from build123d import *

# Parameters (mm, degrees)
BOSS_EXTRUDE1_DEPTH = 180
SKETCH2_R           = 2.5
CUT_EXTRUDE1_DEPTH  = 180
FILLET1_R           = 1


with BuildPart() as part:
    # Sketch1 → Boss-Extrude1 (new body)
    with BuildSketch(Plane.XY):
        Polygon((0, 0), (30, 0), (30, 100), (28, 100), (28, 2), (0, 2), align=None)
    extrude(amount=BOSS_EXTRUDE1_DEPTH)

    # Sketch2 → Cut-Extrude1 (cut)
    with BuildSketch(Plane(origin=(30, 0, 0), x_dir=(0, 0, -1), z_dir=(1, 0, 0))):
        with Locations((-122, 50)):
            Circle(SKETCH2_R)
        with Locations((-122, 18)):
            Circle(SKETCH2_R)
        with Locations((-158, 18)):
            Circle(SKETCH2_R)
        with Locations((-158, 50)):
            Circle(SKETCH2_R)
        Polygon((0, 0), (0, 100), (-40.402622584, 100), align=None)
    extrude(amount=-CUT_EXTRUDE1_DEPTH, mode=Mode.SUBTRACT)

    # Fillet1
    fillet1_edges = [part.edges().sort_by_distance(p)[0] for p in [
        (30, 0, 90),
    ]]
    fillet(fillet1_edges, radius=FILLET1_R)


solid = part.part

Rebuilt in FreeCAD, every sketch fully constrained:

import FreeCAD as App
import Part
import Sketcher
Q = App.Units.Quantity


def edges_at(feature, points):
    """Names of the edges that pass closest to the given points."""
    edges = feature.Shape.Edges
    near = lambda p: min(range(len(edges)), key=lambda i: edges[i].distToShape(Part.Vertex(*p))[0])
    return sorted({f"Edge{near(p) + 1}" for p in points})

doc = App.newDocument("Part")
body = doc.addObject("PartDesign::Body", "Body")

# Sketch on XY plane
sketch1 = body.newObject("Sketcher::SketchObject", "Sketch")
sketch1.AttachmentSupport = (doc.getObject("XY_Plane"), [""])
sketch1.MapMode = "FlatFace"
sketch1.addGeometry([
    Part.LineSegment(App.Vector(0, 0, 0), App.Vector(30, 0, 0)),  # 0
    Part.LineSegment(App.Vector(30, 0, 0), App.Vector(30, 100, 0)),  # 1
    Part.LineSegment(App.Vector(30, 100, 0), App.Vector(28, 100, 0)),  # 2
    Part.LineSegment(App.Vector(28, 100, 0), App.Vector(28, 2, 0)),  # 3
    Part.LineSegment(App.Vector(28, 2, 0), App.Vector(0, 2, 0)),  # 4
    Part.LineSegment(App.Vector(0, 2, 0), App.Vector(0, 0, 0)),  # 5
], False)
sketch1.addConstraint([
    Sketcher.Constraint("Coincident", 0, 2, 1, 1),
    Sketcher.Constraint("Coincident", 1, 2, 2, 1),
    Sketcher.Constraint("Coincident", 2, 2, 3, 1),
    Sketcher.Constraint("Coincident", 3, 2, 4, 1),
    Sketcher.Constraint("Coincident", 4, 2, 5, 1),
    Sketcher.Constraint("Coincident", 5, 2, 0, 1),
    Sketcher.Constraint("Horizontal", 0),
    Sketcher.Constraint("Vertical", 1),
    Sketcher.Constraint("Horizontal", 2),
    Sketcher.Constraint("Vertical", 3),
    Sketcher.Constraint("Horizontal", 4),
    Sketcher.Constraint("Vertical", 5),
    Sketcher.Constraint("Coincident", 5, 2, -1, 1),
    Sketcher.Constraint("Equal", 2, 5),
    Sketcher.Constraint("DistanceX", 0, 1, 0, 2, 30.0),
    Sketcher.Constraint("DistanceX", 2, 2, 2, 1, 2.0),
    Sketcher.Constraint("DistanceY", 1, 1, 1, 2, 100.0),
])
pad1 = body.newObject("PartDesign::Pad", "Pad")
pad1.Profile = sketch1
pad1.Length = 180

# Sketch on YZ plane
sketch2 = body.newObject("Sketcher::SketchObject", "Sketch001")
sketch2.AttachmentSupport = (doc.getObject("YZ_Plane"), [""])
sketch2.MapMode = "FlatFace"
sketch2.AttachmentOffset = App.Placement(App.Vector(0, 0, 30), App.Rotation())
sketch2.addGeometry([
    Part.Circle(App.Vector(50, 122, 0), App.Vector(0, 0, 1), 2.5),  # 0
    Part.Circle(App.Vector(18, 122, 0), App.Vector(0, 0, 1), 2.5),  # 1
    Part.Circle(App.Vector(18, 158, 0), App.Vector(0, 0, 1), 2.5),  # 2
    Part.Circle(App.Vector(50, 158, 0), App.Vector(0, 0, 1), 2.5),  # 3
    Part.LineSegment(App.Vector(0, 0, 0), App.Vector(100, 0, 0)),  # 4
    Part.LineSegment(App.Vector(100, 0, 0), App.Vector(100, 40.402623, 0)),  # 5
    Part.LineSegment(App.Vector(100, 40.402623, 0), App.Vector(0, 0, 0)),  # 6
], False)
sketch2.addConstraint([
    Sketcher.Constraint("Coincident", 4, 2, 5, 1),
    Sketcher.Constraint("Coincident", 5, 2, 6, 1),
    Sketcher.Constraint("Coincident", 6, 2, 4, 1),
    Sketcher.Constraint("Horizontal", 4),
    Sketcher.Constraint("Vertical", 5),
    Sketcher.Constraint("Coincident", 6, 2, -1, 1),
    Sketcher.Constraint("Equal", 0, 1),
    Sketcher.Constraint("Equal", 1, 2),
    Sketcher.Constraint("Equal", 2, 3),
    Sketcher.Constraint("Horizontal", 0, 3, 1, 3),
    Sketcher.Constraint("Horizontal", 2, 3, 3, 3),
    Sketcher.Constraint("Vertical", 1, 3, 2, 3),
    Sketcher.Constraint("Vertical", 0, 3, 3, 3),
    Sketcher.Constraint("Diameter", 0, 5.0),
    Sketcher.Constraint("DistanceX", 4, 1, 4, 2, 100.0),
    Sketcher.Constraint("Angle", 6, Q("-158 deg")),
    Sketcher.Constraint("DistanceX", -1, 1, 0, 3, 50.0),
    Sketcher.Constraint("DistanceY", -1, 1, 0, 3, 122.0),
    Sketcher.Constraint("DistanceX", -1, 1, 1, 3, 18.0),
    Sketcher.Constraint("DistanceY", -1, 1, 2, 3, 158.0),
])
pocket1 = body.newObject("PartDesign::Pocket", "Pocket")
pocket1.Profile = sketch2
pocket1.Length = 180
doc.recompute()

fillet = body.newObject("PartDesign::Fillet", "Fillet")
fillet.Base = (pocket1, edges_at(pocket1, [(30, 0, 90)]))
fillet.Radius = 1

doc.recompute()
